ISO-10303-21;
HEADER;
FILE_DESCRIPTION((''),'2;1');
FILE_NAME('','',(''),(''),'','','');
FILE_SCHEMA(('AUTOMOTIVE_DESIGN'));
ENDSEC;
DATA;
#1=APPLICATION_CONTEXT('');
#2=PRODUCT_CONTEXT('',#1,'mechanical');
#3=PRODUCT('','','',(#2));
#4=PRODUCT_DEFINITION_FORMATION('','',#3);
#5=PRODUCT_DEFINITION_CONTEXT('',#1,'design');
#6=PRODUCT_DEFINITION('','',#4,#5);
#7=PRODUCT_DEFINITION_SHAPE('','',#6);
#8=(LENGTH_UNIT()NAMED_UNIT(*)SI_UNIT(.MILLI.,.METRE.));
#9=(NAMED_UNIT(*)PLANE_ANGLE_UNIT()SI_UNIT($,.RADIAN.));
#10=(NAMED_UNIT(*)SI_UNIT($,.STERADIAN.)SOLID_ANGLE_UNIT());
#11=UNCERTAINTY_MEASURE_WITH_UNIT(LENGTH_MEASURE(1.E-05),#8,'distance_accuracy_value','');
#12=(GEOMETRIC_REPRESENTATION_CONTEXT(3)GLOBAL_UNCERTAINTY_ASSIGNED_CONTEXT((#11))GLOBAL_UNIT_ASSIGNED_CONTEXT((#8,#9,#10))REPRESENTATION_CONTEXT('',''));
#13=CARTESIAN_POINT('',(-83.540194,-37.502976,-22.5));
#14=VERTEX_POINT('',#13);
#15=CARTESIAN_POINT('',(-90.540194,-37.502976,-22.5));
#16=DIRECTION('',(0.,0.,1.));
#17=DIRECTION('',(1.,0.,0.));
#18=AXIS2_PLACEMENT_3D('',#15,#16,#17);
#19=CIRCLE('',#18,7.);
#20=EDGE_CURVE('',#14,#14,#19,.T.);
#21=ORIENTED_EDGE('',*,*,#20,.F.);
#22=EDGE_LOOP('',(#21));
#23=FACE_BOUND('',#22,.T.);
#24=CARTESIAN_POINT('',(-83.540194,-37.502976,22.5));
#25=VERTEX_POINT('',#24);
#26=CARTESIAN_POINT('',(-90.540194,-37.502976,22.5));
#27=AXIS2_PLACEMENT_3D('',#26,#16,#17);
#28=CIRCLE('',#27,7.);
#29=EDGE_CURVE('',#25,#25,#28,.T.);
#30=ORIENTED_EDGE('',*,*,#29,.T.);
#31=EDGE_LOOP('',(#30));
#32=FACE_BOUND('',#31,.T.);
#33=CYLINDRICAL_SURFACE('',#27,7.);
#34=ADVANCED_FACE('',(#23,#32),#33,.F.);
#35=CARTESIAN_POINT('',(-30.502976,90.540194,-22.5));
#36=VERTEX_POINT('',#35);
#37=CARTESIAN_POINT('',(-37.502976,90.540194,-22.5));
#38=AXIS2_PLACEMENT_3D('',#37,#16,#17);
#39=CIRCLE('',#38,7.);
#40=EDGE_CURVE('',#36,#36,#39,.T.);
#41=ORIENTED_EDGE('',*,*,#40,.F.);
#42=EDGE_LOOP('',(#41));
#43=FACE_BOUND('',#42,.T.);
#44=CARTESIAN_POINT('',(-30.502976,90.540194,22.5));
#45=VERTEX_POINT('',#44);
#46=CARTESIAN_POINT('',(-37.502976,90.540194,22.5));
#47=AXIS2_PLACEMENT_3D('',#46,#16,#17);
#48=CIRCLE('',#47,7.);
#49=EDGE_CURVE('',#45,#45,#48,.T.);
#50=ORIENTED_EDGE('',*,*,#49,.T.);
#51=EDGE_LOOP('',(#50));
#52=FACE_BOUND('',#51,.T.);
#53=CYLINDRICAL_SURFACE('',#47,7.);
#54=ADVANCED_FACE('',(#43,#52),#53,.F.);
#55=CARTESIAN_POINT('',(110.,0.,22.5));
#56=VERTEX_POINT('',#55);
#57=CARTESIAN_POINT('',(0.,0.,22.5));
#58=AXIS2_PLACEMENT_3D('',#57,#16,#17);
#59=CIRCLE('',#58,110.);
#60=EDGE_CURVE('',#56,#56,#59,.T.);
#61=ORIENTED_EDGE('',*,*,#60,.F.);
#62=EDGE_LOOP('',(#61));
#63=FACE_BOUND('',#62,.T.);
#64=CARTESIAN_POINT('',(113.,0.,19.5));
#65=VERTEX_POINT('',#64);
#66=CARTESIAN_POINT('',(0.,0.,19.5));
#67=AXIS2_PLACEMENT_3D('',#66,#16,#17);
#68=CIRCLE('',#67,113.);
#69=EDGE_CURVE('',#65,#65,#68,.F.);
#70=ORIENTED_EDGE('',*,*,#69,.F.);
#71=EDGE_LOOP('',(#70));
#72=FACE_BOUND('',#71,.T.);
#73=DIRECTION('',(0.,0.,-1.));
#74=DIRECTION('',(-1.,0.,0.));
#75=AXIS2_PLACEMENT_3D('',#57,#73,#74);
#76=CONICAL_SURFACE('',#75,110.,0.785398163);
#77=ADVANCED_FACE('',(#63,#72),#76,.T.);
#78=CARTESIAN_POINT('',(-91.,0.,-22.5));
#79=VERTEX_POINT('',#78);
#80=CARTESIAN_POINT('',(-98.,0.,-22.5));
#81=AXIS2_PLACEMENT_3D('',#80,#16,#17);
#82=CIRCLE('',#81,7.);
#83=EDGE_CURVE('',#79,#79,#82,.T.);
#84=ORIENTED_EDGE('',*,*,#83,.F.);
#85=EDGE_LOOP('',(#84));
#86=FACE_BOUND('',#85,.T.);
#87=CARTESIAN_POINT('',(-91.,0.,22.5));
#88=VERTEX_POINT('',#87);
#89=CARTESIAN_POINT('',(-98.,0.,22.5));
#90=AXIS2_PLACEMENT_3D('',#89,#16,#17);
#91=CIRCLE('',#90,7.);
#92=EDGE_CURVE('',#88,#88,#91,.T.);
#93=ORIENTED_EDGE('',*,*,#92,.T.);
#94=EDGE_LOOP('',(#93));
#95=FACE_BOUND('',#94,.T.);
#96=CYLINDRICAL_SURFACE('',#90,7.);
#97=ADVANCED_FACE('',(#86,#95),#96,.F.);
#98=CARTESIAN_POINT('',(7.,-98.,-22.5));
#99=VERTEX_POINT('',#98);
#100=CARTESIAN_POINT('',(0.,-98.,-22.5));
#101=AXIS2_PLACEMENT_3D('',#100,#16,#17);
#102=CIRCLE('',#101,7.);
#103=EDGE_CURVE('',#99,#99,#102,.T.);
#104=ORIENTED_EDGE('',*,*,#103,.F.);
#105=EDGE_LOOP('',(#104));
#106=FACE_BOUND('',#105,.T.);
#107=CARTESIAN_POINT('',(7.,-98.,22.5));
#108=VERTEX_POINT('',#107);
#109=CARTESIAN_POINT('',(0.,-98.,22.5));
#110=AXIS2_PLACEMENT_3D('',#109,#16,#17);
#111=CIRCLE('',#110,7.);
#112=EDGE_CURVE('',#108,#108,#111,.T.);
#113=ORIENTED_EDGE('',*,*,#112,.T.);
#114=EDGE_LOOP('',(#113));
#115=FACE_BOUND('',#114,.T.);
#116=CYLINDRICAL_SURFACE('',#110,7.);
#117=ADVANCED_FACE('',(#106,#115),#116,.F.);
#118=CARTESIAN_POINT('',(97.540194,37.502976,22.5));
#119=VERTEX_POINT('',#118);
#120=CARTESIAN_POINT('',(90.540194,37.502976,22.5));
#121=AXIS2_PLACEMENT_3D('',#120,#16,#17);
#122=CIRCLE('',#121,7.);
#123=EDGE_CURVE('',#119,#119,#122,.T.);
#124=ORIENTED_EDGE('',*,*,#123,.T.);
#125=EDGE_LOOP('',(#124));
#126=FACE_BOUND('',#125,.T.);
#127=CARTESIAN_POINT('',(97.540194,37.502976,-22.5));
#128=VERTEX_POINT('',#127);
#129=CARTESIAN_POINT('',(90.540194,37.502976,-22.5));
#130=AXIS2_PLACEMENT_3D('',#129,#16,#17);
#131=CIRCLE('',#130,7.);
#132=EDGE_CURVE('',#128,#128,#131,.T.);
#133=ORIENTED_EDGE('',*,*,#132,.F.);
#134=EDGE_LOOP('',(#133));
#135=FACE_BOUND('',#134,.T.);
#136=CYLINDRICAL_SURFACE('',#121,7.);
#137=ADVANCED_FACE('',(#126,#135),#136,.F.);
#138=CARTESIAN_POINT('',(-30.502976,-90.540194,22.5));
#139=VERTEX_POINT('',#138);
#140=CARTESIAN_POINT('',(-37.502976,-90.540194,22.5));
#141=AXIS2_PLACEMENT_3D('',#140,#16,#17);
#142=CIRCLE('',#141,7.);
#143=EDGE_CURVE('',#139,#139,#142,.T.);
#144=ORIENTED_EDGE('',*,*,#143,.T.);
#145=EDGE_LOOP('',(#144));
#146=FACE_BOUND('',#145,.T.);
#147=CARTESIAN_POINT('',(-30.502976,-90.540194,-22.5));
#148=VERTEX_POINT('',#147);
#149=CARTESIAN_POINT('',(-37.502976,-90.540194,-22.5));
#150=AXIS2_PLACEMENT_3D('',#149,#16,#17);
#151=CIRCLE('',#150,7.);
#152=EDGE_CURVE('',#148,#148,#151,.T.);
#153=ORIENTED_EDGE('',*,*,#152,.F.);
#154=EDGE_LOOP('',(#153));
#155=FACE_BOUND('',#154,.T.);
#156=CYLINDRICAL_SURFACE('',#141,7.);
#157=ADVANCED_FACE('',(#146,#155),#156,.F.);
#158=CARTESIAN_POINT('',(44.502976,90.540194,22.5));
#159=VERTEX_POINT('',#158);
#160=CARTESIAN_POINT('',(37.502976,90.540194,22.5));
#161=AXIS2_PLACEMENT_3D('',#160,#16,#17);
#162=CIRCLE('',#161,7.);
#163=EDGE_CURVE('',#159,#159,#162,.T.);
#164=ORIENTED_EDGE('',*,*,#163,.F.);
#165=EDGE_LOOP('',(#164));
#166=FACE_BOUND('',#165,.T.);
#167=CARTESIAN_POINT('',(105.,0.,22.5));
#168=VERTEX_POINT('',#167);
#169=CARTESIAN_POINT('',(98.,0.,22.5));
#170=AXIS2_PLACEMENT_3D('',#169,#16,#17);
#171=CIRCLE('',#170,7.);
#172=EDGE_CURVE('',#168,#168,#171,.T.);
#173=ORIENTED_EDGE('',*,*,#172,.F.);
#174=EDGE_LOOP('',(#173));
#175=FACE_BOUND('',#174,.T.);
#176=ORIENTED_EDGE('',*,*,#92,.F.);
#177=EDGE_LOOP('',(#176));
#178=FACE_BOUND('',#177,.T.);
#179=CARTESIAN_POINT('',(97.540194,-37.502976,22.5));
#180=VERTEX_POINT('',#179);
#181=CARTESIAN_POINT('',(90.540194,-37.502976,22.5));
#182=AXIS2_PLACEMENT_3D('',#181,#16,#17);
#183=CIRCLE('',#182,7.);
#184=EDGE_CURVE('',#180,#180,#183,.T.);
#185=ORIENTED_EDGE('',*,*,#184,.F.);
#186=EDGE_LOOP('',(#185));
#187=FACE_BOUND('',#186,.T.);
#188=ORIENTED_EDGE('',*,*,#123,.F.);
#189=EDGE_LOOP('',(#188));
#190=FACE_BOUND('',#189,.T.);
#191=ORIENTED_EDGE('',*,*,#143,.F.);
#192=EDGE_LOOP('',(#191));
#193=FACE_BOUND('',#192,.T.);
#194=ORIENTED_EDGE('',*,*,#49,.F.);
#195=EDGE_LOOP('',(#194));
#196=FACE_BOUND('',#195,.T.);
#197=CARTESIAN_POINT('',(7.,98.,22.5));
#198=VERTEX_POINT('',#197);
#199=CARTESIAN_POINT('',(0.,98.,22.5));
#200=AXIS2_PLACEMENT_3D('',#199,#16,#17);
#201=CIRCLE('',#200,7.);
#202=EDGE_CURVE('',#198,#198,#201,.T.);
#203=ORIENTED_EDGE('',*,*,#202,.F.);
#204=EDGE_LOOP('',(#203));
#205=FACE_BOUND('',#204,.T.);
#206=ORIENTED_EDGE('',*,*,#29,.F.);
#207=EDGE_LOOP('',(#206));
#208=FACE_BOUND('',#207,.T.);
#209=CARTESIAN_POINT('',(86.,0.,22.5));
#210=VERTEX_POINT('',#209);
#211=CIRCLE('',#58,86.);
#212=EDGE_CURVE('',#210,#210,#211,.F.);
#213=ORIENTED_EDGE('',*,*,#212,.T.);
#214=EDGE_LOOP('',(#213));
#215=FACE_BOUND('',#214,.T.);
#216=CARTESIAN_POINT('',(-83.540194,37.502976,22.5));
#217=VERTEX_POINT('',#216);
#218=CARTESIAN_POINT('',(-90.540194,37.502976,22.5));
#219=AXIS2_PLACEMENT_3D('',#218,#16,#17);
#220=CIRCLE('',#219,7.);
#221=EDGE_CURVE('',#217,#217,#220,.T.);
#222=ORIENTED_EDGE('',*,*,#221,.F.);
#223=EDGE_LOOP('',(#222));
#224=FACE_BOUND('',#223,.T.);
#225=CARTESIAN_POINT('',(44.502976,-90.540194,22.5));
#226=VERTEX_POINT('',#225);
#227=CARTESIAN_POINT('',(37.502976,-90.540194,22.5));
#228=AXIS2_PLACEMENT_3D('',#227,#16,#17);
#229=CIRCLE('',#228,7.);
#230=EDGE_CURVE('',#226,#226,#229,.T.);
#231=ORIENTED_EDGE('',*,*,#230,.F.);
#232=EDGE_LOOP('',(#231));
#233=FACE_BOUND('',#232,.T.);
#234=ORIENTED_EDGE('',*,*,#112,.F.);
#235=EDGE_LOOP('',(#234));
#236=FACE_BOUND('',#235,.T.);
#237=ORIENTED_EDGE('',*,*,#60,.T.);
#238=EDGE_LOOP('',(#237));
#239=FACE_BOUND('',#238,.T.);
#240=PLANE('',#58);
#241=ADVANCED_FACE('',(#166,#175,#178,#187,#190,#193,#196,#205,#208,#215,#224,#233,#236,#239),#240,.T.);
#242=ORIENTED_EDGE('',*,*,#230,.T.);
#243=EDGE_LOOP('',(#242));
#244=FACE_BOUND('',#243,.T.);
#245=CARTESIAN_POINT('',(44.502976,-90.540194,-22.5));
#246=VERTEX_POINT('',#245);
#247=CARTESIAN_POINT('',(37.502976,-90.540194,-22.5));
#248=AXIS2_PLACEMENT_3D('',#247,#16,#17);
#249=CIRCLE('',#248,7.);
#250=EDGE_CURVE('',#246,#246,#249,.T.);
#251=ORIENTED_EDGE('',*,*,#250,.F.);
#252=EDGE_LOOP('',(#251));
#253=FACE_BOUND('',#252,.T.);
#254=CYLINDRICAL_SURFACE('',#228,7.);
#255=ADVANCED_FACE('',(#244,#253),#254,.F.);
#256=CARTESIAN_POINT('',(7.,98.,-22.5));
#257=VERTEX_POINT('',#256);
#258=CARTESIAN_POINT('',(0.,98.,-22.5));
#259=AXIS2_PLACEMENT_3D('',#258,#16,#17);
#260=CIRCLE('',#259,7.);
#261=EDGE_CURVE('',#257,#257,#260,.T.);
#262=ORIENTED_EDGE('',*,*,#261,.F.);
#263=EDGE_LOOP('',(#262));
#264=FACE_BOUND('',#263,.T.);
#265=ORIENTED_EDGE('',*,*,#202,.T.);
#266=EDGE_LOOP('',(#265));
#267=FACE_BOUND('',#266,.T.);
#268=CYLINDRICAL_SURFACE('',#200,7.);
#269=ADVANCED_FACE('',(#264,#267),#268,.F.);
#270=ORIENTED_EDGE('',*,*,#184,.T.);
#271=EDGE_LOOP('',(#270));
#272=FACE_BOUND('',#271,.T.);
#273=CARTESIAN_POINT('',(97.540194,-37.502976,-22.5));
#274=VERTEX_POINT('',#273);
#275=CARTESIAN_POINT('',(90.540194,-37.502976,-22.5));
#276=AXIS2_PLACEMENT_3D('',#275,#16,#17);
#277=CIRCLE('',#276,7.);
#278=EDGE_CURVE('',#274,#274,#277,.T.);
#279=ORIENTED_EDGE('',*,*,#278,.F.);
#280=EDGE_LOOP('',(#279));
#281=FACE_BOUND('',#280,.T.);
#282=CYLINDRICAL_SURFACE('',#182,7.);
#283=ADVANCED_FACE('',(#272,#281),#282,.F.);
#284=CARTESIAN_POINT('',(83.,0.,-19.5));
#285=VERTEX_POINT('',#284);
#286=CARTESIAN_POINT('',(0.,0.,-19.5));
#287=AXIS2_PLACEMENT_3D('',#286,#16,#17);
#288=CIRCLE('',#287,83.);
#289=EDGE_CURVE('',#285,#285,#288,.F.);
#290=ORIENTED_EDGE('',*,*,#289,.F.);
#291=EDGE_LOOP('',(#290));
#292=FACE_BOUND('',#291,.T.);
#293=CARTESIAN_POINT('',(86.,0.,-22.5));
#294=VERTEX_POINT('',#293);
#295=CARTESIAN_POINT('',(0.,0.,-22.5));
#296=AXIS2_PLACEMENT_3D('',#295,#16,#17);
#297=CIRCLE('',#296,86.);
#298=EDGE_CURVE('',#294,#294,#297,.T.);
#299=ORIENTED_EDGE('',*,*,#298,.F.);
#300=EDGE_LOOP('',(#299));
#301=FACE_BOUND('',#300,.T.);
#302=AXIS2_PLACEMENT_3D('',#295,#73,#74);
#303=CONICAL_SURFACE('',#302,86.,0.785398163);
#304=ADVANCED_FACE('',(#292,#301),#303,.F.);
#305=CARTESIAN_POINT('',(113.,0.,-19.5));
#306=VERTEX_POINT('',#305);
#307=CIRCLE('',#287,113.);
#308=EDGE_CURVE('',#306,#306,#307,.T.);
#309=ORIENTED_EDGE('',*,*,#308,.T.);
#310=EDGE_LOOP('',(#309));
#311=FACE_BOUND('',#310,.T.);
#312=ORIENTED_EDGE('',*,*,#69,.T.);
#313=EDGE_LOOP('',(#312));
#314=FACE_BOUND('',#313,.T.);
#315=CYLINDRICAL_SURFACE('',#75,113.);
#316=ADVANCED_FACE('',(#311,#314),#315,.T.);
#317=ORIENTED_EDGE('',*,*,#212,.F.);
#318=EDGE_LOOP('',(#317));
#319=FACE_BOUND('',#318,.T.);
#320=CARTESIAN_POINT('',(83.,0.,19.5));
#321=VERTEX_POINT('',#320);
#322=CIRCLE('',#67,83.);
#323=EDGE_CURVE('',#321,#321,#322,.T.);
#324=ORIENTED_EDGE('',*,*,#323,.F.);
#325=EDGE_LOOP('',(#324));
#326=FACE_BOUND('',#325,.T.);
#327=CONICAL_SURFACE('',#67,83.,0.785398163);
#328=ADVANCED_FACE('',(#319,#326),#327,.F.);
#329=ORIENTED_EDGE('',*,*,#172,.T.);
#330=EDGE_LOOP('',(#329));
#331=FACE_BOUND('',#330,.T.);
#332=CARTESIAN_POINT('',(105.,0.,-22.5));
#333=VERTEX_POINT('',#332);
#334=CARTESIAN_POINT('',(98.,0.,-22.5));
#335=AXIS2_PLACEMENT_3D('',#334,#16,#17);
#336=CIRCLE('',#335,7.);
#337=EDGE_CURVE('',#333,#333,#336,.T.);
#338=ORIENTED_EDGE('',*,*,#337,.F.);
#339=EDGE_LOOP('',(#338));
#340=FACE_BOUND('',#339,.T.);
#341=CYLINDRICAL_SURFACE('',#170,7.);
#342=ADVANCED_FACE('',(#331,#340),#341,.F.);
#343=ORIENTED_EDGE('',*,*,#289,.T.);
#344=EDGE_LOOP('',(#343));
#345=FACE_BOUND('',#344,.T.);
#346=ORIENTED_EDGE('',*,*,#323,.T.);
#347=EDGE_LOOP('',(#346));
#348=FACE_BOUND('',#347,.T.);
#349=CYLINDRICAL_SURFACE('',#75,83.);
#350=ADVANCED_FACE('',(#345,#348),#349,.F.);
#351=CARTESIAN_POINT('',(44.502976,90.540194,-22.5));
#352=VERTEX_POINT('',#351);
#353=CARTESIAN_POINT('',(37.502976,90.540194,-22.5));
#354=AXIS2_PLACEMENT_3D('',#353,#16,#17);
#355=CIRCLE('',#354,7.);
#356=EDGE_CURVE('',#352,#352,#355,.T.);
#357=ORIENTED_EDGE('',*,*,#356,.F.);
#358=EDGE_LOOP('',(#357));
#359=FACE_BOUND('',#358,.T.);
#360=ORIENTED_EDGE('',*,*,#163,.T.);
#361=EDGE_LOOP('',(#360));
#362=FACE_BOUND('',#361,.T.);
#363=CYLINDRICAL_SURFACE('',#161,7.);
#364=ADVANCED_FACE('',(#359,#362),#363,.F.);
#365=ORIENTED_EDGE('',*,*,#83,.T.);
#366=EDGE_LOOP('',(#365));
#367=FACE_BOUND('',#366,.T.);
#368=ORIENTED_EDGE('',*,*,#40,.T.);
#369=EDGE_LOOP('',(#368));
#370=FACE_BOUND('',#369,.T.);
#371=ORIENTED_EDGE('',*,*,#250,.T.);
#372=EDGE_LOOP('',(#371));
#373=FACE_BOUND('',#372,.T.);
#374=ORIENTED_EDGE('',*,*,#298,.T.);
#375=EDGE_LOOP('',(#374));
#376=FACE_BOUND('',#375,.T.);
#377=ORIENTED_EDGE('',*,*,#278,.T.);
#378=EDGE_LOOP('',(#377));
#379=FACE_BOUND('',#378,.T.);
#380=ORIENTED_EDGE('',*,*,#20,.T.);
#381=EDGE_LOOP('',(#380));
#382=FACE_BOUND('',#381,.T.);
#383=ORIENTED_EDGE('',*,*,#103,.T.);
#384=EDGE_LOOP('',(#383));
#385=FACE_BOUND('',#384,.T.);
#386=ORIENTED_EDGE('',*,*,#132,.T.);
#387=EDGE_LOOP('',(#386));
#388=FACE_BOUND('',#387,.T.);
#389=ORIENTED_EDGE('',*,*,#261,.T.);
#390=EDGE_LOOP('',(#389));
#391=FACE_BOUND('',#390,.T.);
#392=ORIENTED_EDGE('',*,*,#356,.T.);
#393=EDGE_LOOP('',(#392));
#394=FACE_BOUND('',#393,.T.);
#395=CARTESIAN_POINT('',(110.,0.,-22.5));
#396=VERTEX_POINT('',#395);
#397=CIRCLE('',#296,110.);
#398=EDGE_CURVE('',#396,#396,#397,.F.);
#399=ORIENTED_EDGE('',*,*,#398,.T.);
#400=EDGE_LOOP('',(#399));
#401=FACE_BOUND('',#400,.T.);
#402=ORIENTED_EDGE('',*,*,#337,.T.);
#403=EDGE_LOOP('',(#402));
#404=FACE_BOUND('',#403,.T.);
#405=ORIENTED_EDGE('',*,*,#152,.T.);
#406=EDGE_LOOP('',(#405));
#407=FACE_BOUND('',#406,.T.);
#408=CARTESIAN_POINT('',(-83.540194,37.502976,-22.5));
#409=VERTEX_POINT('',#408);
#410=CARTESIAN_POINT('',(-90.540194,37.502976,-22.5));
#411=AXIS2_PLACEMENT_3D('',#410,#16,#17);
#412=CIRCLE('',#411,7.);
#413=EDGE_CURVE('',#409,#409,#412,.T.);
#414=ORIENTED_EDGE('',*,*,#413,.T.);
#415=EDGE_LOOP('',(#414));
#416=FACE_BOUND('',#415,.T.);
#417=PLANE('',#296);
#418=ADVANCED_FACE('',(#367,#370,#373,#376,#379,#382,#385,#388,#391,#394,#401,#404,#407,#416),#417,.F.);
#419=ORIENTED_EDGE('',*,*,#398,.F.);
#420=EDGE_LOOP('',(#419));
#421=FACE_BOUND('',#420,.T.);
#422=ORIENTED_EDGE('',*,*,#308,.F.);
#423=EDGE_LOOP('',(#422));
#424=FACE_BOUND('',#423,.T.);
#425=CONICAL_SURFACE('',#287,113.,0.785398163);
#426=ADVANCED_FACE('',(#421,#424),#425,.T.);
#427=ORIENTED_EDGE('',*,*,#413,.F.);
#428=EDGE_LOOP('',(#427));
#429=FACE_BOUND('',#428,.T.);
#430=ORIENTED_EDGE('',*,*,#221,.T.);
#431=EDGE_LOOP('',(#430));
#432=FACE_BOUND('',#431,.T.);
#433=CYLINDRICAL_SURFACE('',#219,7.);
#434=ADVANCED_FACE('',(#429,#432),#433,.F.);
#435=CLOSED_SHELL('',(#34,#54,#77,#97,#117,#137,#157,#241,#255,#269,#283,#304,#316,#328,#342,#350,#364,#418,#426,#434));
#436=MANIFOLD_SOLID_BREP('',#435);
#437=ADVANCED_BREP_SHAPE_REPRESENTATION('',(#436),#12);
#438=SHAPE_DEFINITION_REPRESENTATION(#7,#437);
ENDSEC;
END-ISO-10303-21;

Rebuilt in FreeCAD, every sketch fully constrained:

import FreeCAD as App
import Part
import Sketcher


def edges_at(feature, points):
    """Names of the edges that pass closest to the given points."""
    edges = feature.Shape.Edges
    near = lambda p: min(range(len(edges)), key=lambda i: edges[i].distToShape(Part.Vertex(*p))[0])
    return sorted({f"Edge{near(p) + 1}" for p in points})

doc = App.newDocument("Part")
body = doc.addObject("PartDesign::Body", "Body")

# Sketch on XY plane
sketch1 = doc.addObject("Sketcher::SketchObject", "Sketch")
body.addObject(sketch1)
sketch1.AttachmentSupport = (doc.XY_Plane, [""])
sketch1.MapMode = "FlatFace"
sketch1.addGeometry(Part.Circle(App.Vector(0, 0, 0), App.Vector(0, 0, 1), 113), False)
sketch1.addGeometry(Part.Circle(App.Vector(0, 0, 0), App.Vector(0, 0, 1), 83), False)
sketch1.addConstraint(Sketcher.Constraint("Coincident", 0, 3, -1, 1))
sketch1.addConstraint(Sketcher.Constraint("Coincident", 1, 3, -1, 1))
sketch1.addConstraint(Sketcher.Constraint("Diameter", 0, 226.0))
sketch1.addConstraint(Sketcher.Constraint("Diameter", 1, 166.0))
pad1 = doc.addObject("PartDesign::Pad", "Pad")
body.addObject(pad1)
pad1.Profile = sketch1
pad1.Length = 45
pad1.Midplane = True
doc.recompute()

chamfer = doc.addObject("PartDesign::Chamfer", "Chamfer")
body.addObject(chamfer)
chamfer.Base = (pad1, edges_at(pad1, [
    (-113, 0, -22.5),
    (-113, 0, 22.5),
    (-83, 0, -22.5),
    (-83, 0, 22.5),
]))
chamfer.Size = 3

# Sketch on XY plane
sketch2 = doc.addObject("Sketcher::SketchObject", "Sketch001")
body.addObject(sketch2)
sketch2.AttachmentSupport = (doc.XY_Plane, [""])
sketch2.MapMode = "FlatFace"
sketch2.AttachmentOffset = App.Placement(App.Vector(0, 0, 22.5), App.Rotation())
sketch2.addGeometry(Part.Circle(App.Vector(-38, 91, 0), App.Vector(0, 0, 1), 7), False)
sketch2.addGeometry(Part.Circle(App.Vector(38, 91, 0), App.Vector(0, 0, 1), 7), False)
sketch2.addGeometry(Part.Circle(App.Vector(0, 98, 0), App.Vector(0, 0, 1), 7), False)
sketch2.addConstraint(Sketcher.Constraint("Equal", 0, 1))
sketch2.addConstraint(Sketcher.Constraint("Equal", 1, 2))
sketch2.addConstraint(Sketcher.Constraint("Symmetric", 0, 3, 1, 3, -2))
sketch2.addConstraint(Sketcher.Constraint("PointOnObject", 2, 3, -2))
sketch2.addConstraint(Sketcher.Constraint("Diameter", 0, 14.0))
sketch2.addConstraint(Sketcher.Constraint("DistanceY", -1, 1, 2, 3, 98.0))
sketch2.addConstraint(Sketcher.Constraint("DistanceX", 0, 3, -1, 1, 37.502976))
sketch2.addConstraint(Sketcher.Constraint("DistanceY", -1, 1, 0, 3, 90.540194))
doc.recompute()
hole = doc.addObject("PartDesign::Hole", "Hole")
body.addObject(hole)
hole.Profile = sketch2
hole.ThreadType = "None"
hole.Diameter = 14
hole.DepthType = "ThroughAll"
doc.recompute()

polarpattern = doc.addObject("PartDesign::PolarPattern", "PolarPattern")
body.addObject(polarpattern)
polarpattern.Originals = [hole]
polarpattern.Axis = (doc.Z_Axis, [""])
polarpattern.Angle = 360
polarpattern.Occurrences = 4
body.Tip = polarpattern

doc.recompute()
